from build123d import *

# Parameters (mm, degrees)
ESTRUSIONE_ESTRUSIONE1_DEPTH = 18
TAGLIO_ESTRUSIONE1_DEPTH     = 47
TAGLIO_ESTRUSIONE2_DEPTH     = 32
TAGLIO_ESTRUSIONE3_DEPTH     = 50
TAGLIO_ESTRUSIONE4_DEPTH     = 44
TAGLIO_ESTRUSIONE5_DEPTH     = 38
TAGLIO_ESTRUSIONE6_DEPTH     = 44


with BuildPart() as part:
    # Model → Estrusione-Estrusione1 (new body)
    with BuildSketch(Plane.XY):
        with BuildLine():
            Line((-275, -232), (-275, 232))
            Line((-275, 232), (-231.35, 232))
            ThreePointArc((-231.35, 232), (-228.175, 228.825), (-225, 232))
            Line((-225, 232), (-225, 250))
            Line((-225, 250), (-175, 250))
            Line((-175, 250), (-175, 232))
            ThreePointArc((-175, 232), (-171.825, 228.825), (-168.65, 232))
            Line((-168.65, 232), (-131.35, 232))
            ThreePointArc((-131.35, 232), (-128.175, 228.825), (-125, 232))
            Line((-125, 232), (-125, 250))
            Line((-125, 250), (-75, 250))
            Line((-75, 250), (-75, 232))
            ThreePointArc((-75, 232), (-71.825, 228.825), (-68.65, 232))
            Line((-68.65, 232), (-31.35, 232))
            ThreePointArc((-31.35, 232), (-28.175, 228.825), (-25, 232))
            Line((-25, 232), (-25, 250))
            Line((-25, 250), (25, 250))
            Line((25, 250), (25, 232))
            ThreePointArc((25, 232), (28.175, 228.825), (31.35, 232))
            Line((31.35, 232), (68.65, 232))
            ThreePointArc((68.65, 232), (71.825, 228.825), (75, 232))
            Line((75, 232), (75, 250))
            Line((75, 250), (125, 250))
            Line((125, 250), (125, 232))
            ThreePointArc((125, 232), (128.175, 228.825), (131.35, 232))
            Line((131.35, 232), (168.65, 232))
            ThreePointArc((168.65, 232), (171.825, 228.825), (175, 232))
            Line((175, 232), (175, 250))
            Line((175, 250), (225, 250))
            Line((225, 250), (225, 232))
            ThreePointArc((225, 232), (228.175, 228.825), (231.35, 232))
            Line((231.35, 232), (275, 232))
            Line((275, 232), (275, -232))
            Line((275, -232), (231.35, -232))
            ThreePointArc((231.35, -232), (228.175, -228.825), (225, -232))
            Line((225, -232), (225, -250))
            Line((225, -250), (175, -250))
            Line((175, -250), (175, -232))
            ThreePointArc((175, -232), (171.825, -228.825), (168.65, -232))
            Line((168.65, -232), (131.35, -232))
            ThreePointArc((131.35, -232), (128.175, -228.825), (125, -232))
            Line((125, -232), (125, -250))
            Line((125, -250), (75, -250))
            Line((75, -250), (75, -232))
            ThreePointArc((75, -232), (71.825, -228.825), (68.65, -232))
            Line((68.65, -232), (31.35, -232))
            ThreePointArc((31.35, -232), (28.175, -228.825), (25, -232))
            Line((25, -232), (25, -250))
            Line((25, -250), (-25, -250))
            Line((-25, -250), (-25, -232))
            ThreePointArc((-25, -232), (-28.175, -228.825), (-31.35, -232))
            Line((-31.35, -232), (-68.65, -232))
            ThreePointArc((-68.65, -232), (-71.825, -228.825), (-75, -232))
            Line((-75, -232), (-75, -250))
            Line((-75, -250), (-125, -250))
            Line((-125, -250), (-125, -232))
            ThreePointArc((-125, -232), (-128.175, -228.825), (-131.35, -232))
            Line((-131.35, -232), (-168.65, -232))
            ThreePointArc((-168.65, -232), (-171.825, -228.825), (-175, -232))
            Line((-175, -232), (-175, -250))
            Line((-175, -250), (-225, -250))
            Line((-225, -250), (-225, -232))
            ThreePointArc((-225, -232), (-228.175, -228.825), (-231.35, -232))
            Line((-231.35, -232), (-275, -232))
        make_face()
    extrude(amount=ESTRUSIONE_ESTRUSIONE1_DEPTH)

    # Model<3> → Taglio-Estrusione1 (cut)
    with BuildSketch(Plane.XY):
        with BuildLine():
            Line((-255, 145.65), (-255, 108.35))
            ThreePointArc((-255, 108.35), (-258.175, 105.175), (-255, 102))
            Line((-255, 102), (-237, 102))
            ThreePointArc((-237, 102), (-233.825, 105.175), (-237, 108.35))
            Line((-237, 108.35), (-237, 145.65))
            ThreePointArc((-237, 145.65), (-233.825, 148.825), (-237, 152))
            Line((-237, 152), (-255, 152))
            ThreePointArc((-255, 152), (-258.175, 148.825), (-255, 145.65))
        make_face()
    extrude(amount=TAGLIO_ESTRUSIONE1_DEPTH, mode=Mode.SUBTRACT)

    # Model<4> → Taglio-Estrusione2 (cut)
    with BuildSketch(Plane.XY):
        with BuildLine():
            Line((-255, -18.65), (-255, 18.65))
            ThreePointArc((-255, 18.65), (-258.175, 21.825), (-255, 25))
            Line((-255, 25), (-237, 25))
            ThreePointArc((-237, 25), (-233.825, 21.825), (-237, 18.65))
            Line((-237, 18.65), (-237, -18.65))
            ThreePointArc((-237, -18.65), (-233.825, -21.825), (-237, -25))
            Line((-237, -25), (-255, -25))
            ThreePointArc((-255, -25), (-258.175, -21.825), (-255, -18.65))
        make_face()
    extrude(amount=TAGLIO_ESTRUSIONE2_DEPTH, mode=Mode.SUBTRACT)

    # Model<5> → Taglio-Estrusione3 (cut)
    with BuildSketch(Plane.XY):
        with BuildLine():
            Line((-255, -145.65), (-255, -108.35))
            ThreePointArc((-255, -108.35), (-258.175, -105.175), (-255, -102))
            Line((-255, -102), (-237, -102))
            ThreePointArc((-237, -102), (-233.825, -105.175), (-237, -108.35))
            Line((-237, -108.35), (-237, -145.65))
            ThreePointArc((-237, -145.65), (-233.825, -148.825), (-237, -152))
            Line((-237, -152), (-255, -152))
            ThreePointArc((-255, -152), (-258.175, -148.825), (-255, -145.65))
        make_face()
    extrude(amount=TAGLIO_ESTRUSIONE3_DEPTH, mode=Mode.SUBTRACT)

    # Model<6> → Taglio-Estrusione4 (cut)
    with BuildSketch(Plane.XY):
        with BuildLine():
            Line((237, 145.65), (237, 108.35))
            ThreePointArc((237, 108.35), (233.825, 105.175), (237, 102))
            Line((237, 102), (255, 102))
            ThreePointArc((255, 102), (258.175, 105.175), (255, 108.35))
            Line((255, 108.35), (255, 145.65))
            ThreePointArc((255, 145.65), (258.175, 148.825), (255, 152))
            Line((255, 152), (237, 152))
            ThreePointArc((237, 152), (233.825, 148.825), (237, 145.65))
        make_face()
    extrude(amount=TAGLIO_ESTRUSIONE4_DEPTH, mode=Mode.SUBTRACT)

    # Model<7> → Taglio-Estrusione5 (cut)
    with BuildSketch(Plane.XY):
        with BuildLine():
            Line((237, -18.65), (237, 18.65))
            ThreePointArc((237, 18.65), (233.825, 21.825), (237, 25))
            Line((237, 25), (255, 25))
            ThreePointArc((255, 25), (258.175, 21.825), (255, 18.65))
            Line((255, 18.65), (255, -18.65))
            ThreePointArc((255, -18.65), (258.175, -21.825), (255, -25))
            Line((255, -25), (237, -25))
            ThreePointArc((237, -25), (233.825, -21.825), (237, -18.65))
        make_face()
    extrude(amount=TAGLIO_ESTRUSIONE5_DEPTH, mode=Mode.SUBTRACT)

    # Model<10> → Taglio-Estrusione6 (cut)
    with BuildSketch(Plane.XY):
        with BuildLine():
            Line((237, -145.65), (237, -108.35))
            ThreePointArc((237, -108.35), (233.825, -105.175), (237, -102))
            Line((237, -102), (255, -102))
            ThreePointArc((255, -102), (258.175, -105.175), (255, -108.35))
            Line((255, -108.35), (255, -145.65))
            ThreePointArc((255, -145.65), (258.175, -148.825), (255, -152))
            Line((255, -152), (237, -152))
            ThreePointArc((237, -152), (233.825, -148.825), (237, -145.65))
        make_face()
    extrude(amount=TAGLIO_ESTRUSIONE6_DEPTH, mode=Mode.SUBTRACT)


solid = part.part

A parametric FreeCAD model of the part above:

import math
import FreeCAD as App
import Part
import Sketcher
from FreeCAD import Vector
Q = App.Units.Quantity

doc = App.newDocument("Part")
body = doc.addObject("PartDesign::Body", "Body")

# Sketch on XY plane
sketch1 = doc.addObject("Sketcher::SketchObject", "Sketch")
body.addObject(sketch1)
sketch1.AttachmentSupport = (doc.XY_Plane, [""])
sketch1.MapMode = "FlatFace"
sketch1.addGeometry(Part.LineSegment(Vector(-275, 232, 0), Vector(-275, -232, 0)), False)
sketch1.addGeometry(Part.LineSegment(Vector(-275, -232, 0), Vector(-231.3, -232, 0)), False)
sketch1.addGeometry(Part.ArcOfCircle(Part.Circle(Vector(-228.2, -232, 0), Vector(0, 0, 1), 3.2), math.radians(0), math.radians(180)), False)
sketch1.addGeometry(Part.LineSegment(Vector(-225, -232, 0), Vector(-225, -250, 0)), False)
sketch1.addGeometry(Part.LineSegment(Vector(-225, -250, 0), Vector(-175, -250, 0)), False)
sketch1.addGeometry(Part.LineSegment(Vector(-175, -250, 0), Vector(-175, -232, 0)), False)
sketch1.addGeometry(Part.ArcOfCircle(Part.Circle(Vector(-171.8, -232, 0), Vector(0, 0, 1), 3.2), math.radians(0), math.radians(180)), False)
sketch1.addGeometry(Part.LineSegment(Vector(-168.7, -232, 0), Vector(-131.3, -232, 0)), False)
sketch1.addGeometry(Part.ArcOfCircle(Part.Circle(Vector(-128.2, -232, 0), Vector(0, 0, 1), 3.2), math.radians(0), math.radians(180)), False)
sketch1.addGeometry(Part.LineSegment(Vector(-125, -232, 0), Vector(-125, -250, 0)), False)
sketch1.addGeometry(Part.LineSegment(Vector(-125, -250, 0), Vector(-75, -250, 0)), False)
sketch1.addGeometry(Part.LineSegment(Vector(-75, -250, 0), Vector(-75, -232, 0)), False)
sketch1.addGeometry(Part.ArcOfCircle(Part.Circle(Vector(-71.8, -232, 0), Vector(0, 0, 1), 3.2), math.radians(0), math.radians(180)), False)
sketch1.addGeometry(Part.LineSegment(Vector(-68.7, -232, 0), Vector(-31.4, -232, 0)), False)
sketch1.addGeometry(Part.ArcOfCircle(Part.Circle(Vector(-28.2, -232, 0), Vector(0, 0, 1), 3.2), math.radians(0), math.radians(180)), False)
sketch1.addGeometry(Part.LineSegment(Vector(-25, -232, 0), Vector(-25, -250, 0)), False)
sketch1.addGeometry(Part.LineSegment(Vector(-25, -250, 0), Vector(25, -250, 0)), False)
sketch1.addGeometry(Part.LineSegment(Vector(25, -250, 0), Vector(25, -232, 0)), False)
sketch1.addGeometry(Part.ArcOfCircle(Part.Circle(Vector(28.2, -232, 0), Vector(0, 0, 1), 3.2), math.radians(0), math.radians(180)), False)
sketch1.addGeometry(Part.LineSegment(Vector(31.4, -232, 0), Vector(68.7, -232, 0)), False)
sketch1.addGeometry(Part.ArcOfCircle(Part.Circle(Vector(71.8, -232, 0), Vector(0, 0, 1), 3.2), math.radians(0), math.radians(180)), False)
sketch1.addGeometry(Part.LineSegment(Vector(75, -232, 0), Vector(75, -250, 0)), False)
sketch1.addGeometry(Part.LineSegment(Vector(75, -250, 0), Vector(125, -250, 0)), False)
sketch1.addGeometry(Part.LineSegment(Vector(125, -250, 0), Vector(125, -232, 0)), False)
sketch1.addGeometry(Part.ArcOfCircle(Part.Circle(Vector(128.2, -232, 0), Vector(0, 0, 1), 3.2), math.radians(0), math.radians(180)), False)
sketch1.addGeometry(Part.LineSegment(Vector(131.3, -232, 0), Vector(168.7, -232, 0)), False)
sketch1.addGeometry(Part.ArcOfCircle(Part.Circle(Vector(171.8, -232, 0), Vector(0, 0, 1), 3.2), math.radians(0), math.radians(180)), False)
sketch1.addGeometry(Part.LineSegment(Vector(175, -232, 0), Vector(175, -250, 0)), False)
sketch1.addGeometry(Part.LineSegment(Vector(175, -250, 0), Vector(225, -250, 0)), False)
sketch1.addGeometry(Part.LineSegment(Vector(225, -250, 0), Vector(225, -232, 0)), False)
sketch1.addGeometry(Part.ArcOfCircle(Part.Circle(Vector(228.2, -232, 0), Vector(0, 0, 1), 3.2), math.radians(0), math.radians(180)), False)
sketch1.addGeometry(Part.LineSegment(Vector(231.3, -232, 0), Vector(275, -232, 0)), False)
sketch1.addGeometry(Part.LineSegment(Vector(275, -232, 0), Vector(275, 232, 0)), False)
sketch1.addGeometry(Part.LineSegment(Vector(275, 232, 0), Vector(231.3, 232, 0)), False)
sketch1.addGeometry(Part.ArcOfCircle(Part.Circle(Vector(228.2, 232, 0), Vector(0, 0, 1), 3.2), math.radians(180), math.radians(360)), False)
sketch1.addGeometry(Part.LineSegment(Vector(225, 232, 0), Vector(225, 250, 0)), False)
sketch1.addGeometry(Part.LineSegment(Vector(225, 250, 0), Vector(175, 250, 0)), False)
sketch1.addGeometry(Part.LineSegment(Vector(175, 250, 0), Vector(175, 232, 0)), False)
sketch1.addGeometry(Part.ArcOfCircle(Part.Circle(Vector(171.8, 232, 0), Vector(0, 0, 1), 3.2), math.radians(180), math.radians(360)), False)
sketch1.addGeometry(Part.LineSegment(Vector(168.7, 232, 0), Vector(131.3, 232, 0)), False)
sketch1.addGeometry(Part.ArcOfCircle(Part.Circle(Vector(128.2, 232, 0), Vector(0, 0, 1), 3.2), math.radians(180), math.radians(360)), False)
sketch1.addGeometry(Part.LineSegment(Vector(125, 232, 0), Vector(125, 250, 0)), False)
sketch1.addGeometry(Part.LineSegment(Vector(125, 250, 0), Vector(75, 250, 0)), False)
sketch1.addGeometry(Part.LineSegment(Vector(75, 250, 0), Vector(75, 232, 0)), False)
sketch1.addGeometry(Part.ArcOfCircle(Part.Circle(Vector(71.8, 232, 0), Vector(0, 0, 1), 3.2), math.radians(180), math.radians(360)), False)
sketch1.addGeometry(Part.LineSegment(Vector(68.7, 232, 0), Vector(31.4, 232, 0)), False)
sketch1.addGeometry(Part.ArcOfCircle(Part.Circle(Vector(28.2, 232, 0), Vector(0, 0, 1), 3.2), math.radians(180), math.radians(360)), False)
sketch1.addGeometry(Part.LineSegment(Vector(25, 232, 0), Vector(25, 250, 0)), False)
sketch1.addGeometry(Part.LineSegment(Vector(25, 250, 0), Vector(-25, 250, 0)), False)
sketch1.addGeometry(Part.LineSegment(Vector(-25, 250, 0), Vector(-25, 232, 0)), False)
sketch1.addGeometry(Part.ArcOfCircle(Part.Circle(Vector(-28.2, 232, 0), Vector(0, 0, 1), 3.2), math.radians(180), math.radians(360)), False)
sketch1.addGeometry(Part.LineSegment(Vector(-31.4, 232, 0), Vector(-68.7, 232, 0)), False)
sketch1.addGeometry(Part.ArcOfCircle(Part.Circle(Vector(-71.8, 232, 0), Vector(0, 0, 1), 3.2), math.radians(180), math.radians(360)), False)
sketch1.addGeometry(Part.LineSegment(Vector(-75, 232, 0), Vector(-75, 250, 0)), False)
sketch1.addGeometry(Part.LineSegment(Vector(-75, 250, 0), Vector(-125, 250, 0)), False)
sketch1.addGeometry(Part.LineSegment(Vector(-125, 250, 0), Vector(-125, 232, 0)), False)
sketch1.addGeometry(Part.ArcOfCircle(Part.Circle(Vector(-128.2, 232, 0), Vector(0, 0, 1), 3.2), math.radians(180), math.radians(360)), False)
sketch1.addGeometry(Part.LineSegment(Vector(-131.3, 232, 0), Vector(-168.7, 232, 0)), False)
sketch1.addGeometry(Part.ArcOfCircle(Part.Circle(Vector(-171.8, 232, 0), Vector(0, 0, 1), 3.2), math.radians(180), math.radians(360)), False)
sketch1.addGeometry(Part.LineSegment(Vector(-175, 232, 0), Vector(-175, 250, 0)), False)
sketch1.addGeometry(Part.LineSegment(Vector(-175, 250, 0), Vector(-225, 250, 0)), False)
sketch1.addGeometry(Part.LineSegment(Vector(-225, 250, 0), Vector(-225, 232, 0)), False)
sketch1.addGeometry(Part.ArcOfCircle(Part.Circle(Vector(-228.2, 232, 0), Vector(0, 0, 1), 3.2), math.radians(180), math.radians(360)), False)
sketch1.addGeometry(Part.LineSegment(Vector(-231.3, 232, 0), Vector(-275, 232, 0)), False)
sketch1.addConstraint(Sketcher.Constraint("Coincident", 0, 2, 1, 1))
sketch1.addConstraint(Sketcher.Constraint("Coincident", 1, 2, 2, 2))
sketch1.addConstraint(Sketcher.Constraint("Tangent", 2, 1, 3, 1))
sketch1.addConstraint(Sketcher.Constraint("Coincident", 3, 2, 4, 1))
sketch1.addConstraint(Sketcher.Constraint("Coincident", 4, 2, 5, 1))
sketch1.addConstraint(Sketcher.Constraint("Tangent", 5, 2, 6, 2))
sketch1.addConstraint(Sketcher.Constraint("Coincident", 6, 1, 7, 1))
sketch1.addConstraint(Sketcher.Constraint("Coincident", 7, 2, 8, 2))
sketch1.addConstraint(Sketcher.Constraint("Tangent", 8, 1, 9, 1))
sketch1.addConstraint(Sketcher.Constraint("Coincident", 9, 2, 10, 1))
sketch1.addConstraint(Sketcher.Constraint("Coincident", 10, 2, 11, 1))
sketch1.addConstraint(Sketcher.Constraint("Tangent", 11, 2, 12, 2))
sketch1.addConstraint(Sketcher.Constraint("Coincident", 12, 1, 13, 1))
sketch1.addConstraint(Sketcher.Constraint("Coincident", 13, 2, 14, 2))
sketch1.addConstraint(Sketcher.Constraint("Tangent", 14, 1, 15, 1))
sketch1.addConstraint(Sketcher.Constraint("Coincident", 15, 2, 16, 1))
sketch1.addConstraint(Sketcher.Constraint("Coincident", 16, 2, 17, 1))
sketch1.addConstraint(Sketcher.Constraint("Tangent", 17, 2, 18, 2))
sketch1.addConstraint(Sketcher.Constraint("Coincident", 18, 1, 19, 1))
sketch1.addConstraint(Sketcher.Constraint("Coincident", 19, 2, 20, 2))
sketch1.addConstraint(Sketcher.Constraint("Tangent", 20, 1, 21, 1))
sketch1.addConstraint(Sketcher.Constraint("Coincident", 21, 2, 22, 1))
sketch1.addConstraint(Sketcher.Constraint("Coincident", 22, 2, 23, 1))
sketch1.addConstraint(Sketcher.Constraint("Tangent", 23, 2, 24, 2))
sketch1.addConstraint(Sketcher.Constraint("Coincident", 24, 1, 25, 1))
sketch1.addConstraint(Sketcher.Constraint("Coincident", 25, 2, 26, 2))
sketch1.addConstraint(Sketcher.Constraint("Tangent", 26, 1, 27, 1))
sketch1.addConstraint(Sketcher.Constraint("Coincident", 27, 2, 28, 1))
sketch1.addConstraint(Sketcher.Constraint("Coincident", 28, 2, 29, 1))
sketch1.addConstraint(Sketcher.Constraint("Tangent", 29, 2, 30, 2))
sketch1.addConstraint(Sketcher.Constraint("Coincident", 30, 1, 31, 1))
sketch1.addConstraint(Sketcher.Constraint("Coincident", 31, 2, 32, 1))
sketch1.addConstraint(Sketcher.Constraint("Coincident", 32, 2, 33, 1))
sketch1.addConstraint(Sketcher.Constraint("Coincident", 33, 2, 34, 2))
sketch1.addConstraint(Sketcher.Constraint("Tangent", 34, 1, 35, 1))
sketch1.addConstraint(Sketcher.Constraint("Coincident", 35, 2, 36, 1))
sketch1.addConstraint(Sketcher.Constraint("Coincident", 36, 2, 37, 1))
sketch1.addConstraint(Sketcher.Constraint("Tangent", 37, 2, 38, 2))
sketch1.addConstraint(Sketcher.Constraint("Coincident", 38, 1, 39, 1))
sketch1.addConstraint(Sketcher.Constraint("Coincident", 39, 2, 40, 2))
sketch1.addConstraint(Sketcher.Constraint("Tangent", 40, 1, 41, 1))
sketch1.addConstraint(Sketcher.Constraint("Coincident", 41, 2, 42, 1))
sketch1.addConstraint(Sketcher.Constraint("Coincident", 42, 2, 43, 1))
sketch1.addConstraint(Sketcher.Constraint("Tangent", 43, 2, 44, 2))
sketch1.addConstraint(Sketcher.Constraint("Coincident", 44, 1, 45, 1))
sketch1.addConstraint(Sketcher.Constraint("Coincident", 45, 2, 46, 2))
sketch1.addConstraint(Sketcher.Constraint("Tangent", 46, 1, 47, 1))
sketch1.addConstraint(Sketcher.Constraint("Coincident", 47, 2, 48, 1))
sketch1.addConstraint(Sketcher.Constraint("Coincident", 48, 2, 49, 1))
sketch1.addConstraint(Sketcher.Constraint("Tangent", 49, 2, 50, 2))
sketch1.addConstraint(Sketcher.Constraint("Coincident", 50, 1, 51, 1))
sketch1.addConstraint(Sketcher.Constraint("Coincident", 51, 2, 52, 2))
sketch1.addConstraint(Sketcher.Constraint("Tangent", 52, 1, 53, 1))
sketch1.addConstraint(Sketcher.Constraint("Coincident", 53, 2, 54, 1))
sketch1.addConstraint(Sketcher.Constraint("Coincident", 54, 2, 55, 1))
sketch1.addConstraint(Sketcher.Constraint("Tangent", 55, 2, 56, 2))
sketch1.addConstraint(Sketcher.Constraint("Coincident", 56, 1, 57, 1))
sketch1.addConstraint(Sketcher.Constraint("Coincident", 57, 2, 58, 2))
sketch1.addConstraint(Sketcher.Constraint("Tangent", 58, 1, 59, 1))
sketch1.addConstraint(Sketcher.Constraint("Coincident", 59, 2, 60, 1))
sketch1.addConstraint(Sketcher.Constraint("Coincident", 60, 2, 61, 1))
sketch1.addConstraint(Sketcher.Constraint("Tangent", 61, 2, 62, 2))
sketch1.addConstraint(Sketcher.Constraint("Coincident", 62, 1, 63, 1))
sketch1.addConstraint(Sketcher.Constraint("Coincident", 63, 2, 0, 1))
sketch1.addConstraint(Sketcher.Constraint("Vertical", 0))
sketch1.addConstraint(Sketcher.Constraint("Horizontal", 1))
sketch1.addConstraint(Sketcher.Constraint("Vertical", 3))
sketch1.addConstraint(Sketcher.Constraint("Horizontal", 4))
sketch1.addConstraint(Sketcher.Constraint("Vertical", 5))
sketch1.addConstraint(Sketcher.Constraint("Horizontal", 7))
sketch1.addConstraint(Sketcher.Constraint("Vertical", 9))
sketch1.addConstraint(Sketcher.Constraint("Horizontal", 10))
sketch1.addConstraint(Sketcher.Constraint("Vertical", 11))
sketch1.addConstraint(Sketcher.Constraint("Horizontal", 13))
sketch1.addConstraint(Sketcher.Constraint("Vertical", 15))
sketch1.addConstraint(Sketcher.Constraint("Horizontal", 16))
sketch1.addConstraint(Sketcher.Constraint("Vertical", 17))
sketch1.addConstraint(Sketcher.Constraint("Horizontal", 19))
sketch1.addConstraint(Sketcher.Constraint("Vertical", 21))
sketch1.addConstraint(Sketcher.Constraint("Horizontal", 22))
sketch1.addConstraint(Sketcher.Constraint("Vertical", 23))
sketch1.addConstraint(Sketcher.Constraint("Horizontal", 25))
sketch1.addConstraint(Sketcher.Constraint("Vertical", 27))
sketch1.addConstraint(Sketcher.Constraint("Horizontal", 28))
sketch1.addConstraint(Sketcher.Constraint("Vertical", 29))
sketch1.addConstraint(Sketcher.Constraint("Horizontal", 31))
sketch1.addConstraint(Sketcher.Constraint("Vertical", 32))
sketch1.addConstraint(Sketcher.Constraint("Horizontal", 33))
sketch1.addConstraint(Sketcher.Constraint("Vertical", 35))
sketch1.addConstraint(Sketcher.Constraint("Horizontal", 36))
sketch1.addConstraint(Sketcher.Constraint("Vertical", 37))
sketch1.addConstraint(Sketcher.Constraint("Horizontal", 39))
sketch1.addConstraint(Sketcher.Constraint("Vertical", 41))
sketch1.addConstraint(Sketcher.Constraint("Horizontal", 42))
sketch1.addConstraint(Sketcher.Constraint("Vertical", 43))
sketch1.addConstraint(Sketcher.Constraint("Horizontal", 45))
sketch1.addConstraint(Sketcher.Constraint("Vertical", 47))
sketch1.addConstraint(Sketcher.Constraint("Horizontal", 48))
sketch1.addConstraint(Sketcher.Constraint("Vertical", 49))
sketch1.addConstraint(Sketcher.Constraint("Horizontal", 51))
sketch1.addConstraint(Sketcher.Constraint("Vertical", 53))
sketch1.addConstraint(Sketcher.Constraint("Horizontal", 54))
sketch1.addConstraint(Sketcher.Constraint("Vertical", 55))
sketch1.addConstraint(Sketcher.Constraint("Horizontal", 57))
sketch1.addConstraint(Sketcher.Constraint("Vertical", 59))
sketch1.addConstraint(Sketcher.Constraint("Horizontal", 60))
sketch1.addConstraint(Sketcher.Constraint("Vertical", 61))
sketch1.addConstraint(Sketcher.Constraint("Horizontal", 63))
sketch1.addConstraint(Sketcher.Constraint("Equal", 2, 6))
sketch1.addConstraint(Sketcher.Constraint("Equal", 6, 8))
sketch1.addConstraint(Sketcher.Constraint("Equal", 8, 12))
sketch1.addConstraint(Sketcher.Constraint("Equal", 12, 14))
sketch1.addConstraint(Sketcher.Constraint("Equal", 14, 18))
sketch1.addConstraint(Sketcher.Constraint("Equal", 18, 20))
sketch1.addConstraint(Sketcher.Constraint("Equal", 20, 24))
sketch1.addConstraint(Sketcher.Constraint("Equal", 24, 26))
sketch1.addConstraint(Sketcher.Constraint("Equal", 26, 30))
sketch1.addConstraint(Sketcher.Constraint("Equal", 30, 34))
sketch1.addConstraint(Sketcher.Constraint("Equal", 34, 38))
sketch1.addConstraint(Sketcher.Constraint("Equal", 38, 40))
sketch1.addConstraint(Sketcher.Constraint("Equal", 40, 44))
sketch1.addConstraint(Sketcher.Constraint("Equal", 44, 46))
sketch1.addConstraint(Sketcher.Constraint("Equal", 46, 50))
sketch1.addConstraint(Sketcher.Constraint("Equal", 50, 52))
sketch1.addConstraint(Sketcher.Constraint("Equal", 52, 56))
sketch1.addConstraint(Sketcher.Constraint("Equal", 56, 58))
sketch1.addConstraint(Sketcher.Constraint("Equal", 58, 62))
sketch1.addConstraint(Sketcher.Constraint("Symmetric", 2, 3, 34, 3, -1, 1))
sketch1.addConstraint(Sketcher.Constraint("Symmetric", 6, 3, 38, 3, -1, 1))
sketch1.addConstraint(Sketcher.Constraint("Symmetric", 8, 3, 40, 3, -1, 1))
sketch1.addConstraint(Sketcher.Constraint("Symmetric", 12, 3, 44, 3, -1, 1))
sketch1.addConstraint(Sketcher.Constraint("Symmetric", 14, 3, 46, 3, -1, 1))
sketch1.addConstraint(Sketcher.Constraint("Symmetric", 18, 3, 50, 3, -1, 1))
sketch1.addConstraint(Sketcher.Constraint("Symmetric", 20, 3, 52, 3, -1, 1))
sketch1.addConstraint(Sketcher.Constraint("Symmetric", 24, 3, 56, 3, -1, 1))
sketch1.addConstraint(Sketcher.Constraint("Symmetric", 26, 3, 58, 3, -1, 1))
sketch1.addConstraint(Sketcher.Constraint("Symmetric", 30, 3, 62, 3, -1, 1))
sketch1.addConstraint(Sketcher.Constraint("Symmetric", 0, 2, 32, 2, -1, 1))
sketch1.addConstraint(Sketcher.Constraint("Symmetric", 14, 3, 18, 3, -2))
sketch1.addConstraint(Sketcher.Constraint("Symmetric", 12, 3, 20, 3, -2))
sketch1.addConstraint(Sketcher.Constraint("Symmetric", 8, 3, 24, 3, -2))
sketch1.addConstraint(Sketcher.Constraint("Symmetric", 6, 3, 26, 3, -2))
sketch1.addConstraint(Sketcher.Constraint("Symmetric", 2, 3, 30, 3, -2))
sketch1.addConstraint(Sketcher.Constraint("Horizontal", 2, 3, 6, 3))
sketch1.addConstraint(Sketcher.Constraint("Horizontal", 6, 3, 8, 3))
sketch1.addConstraint(Sketcher.Constraint("Horizontal", 8, 3, 12, 3))
sketch1.addConstraint(Sketcher.Constraint("Horizontal", 12, 3, 14, 3))
sketch1.addConstraint(Sketcher.Constraint("Horizontal", 30, 3, 0, 2))
sketch1.addConstraint(Sketcher.Constraint("Horizontal", 5, 2, 6, 1))
sketch1.addConstraint(Sketcher.Constraint("Horizontal", 4, 2, 9, 2))
sketch1.addConstraint(Sketcher.Constraint("Horizontal", 11, 2, 12, 1))
sketch1.addConstraint(Sketcher.Constraint("Horizontal", 10, 2, 15, 2))
sketch1.addConstraint(Sketcher.Constraint("Horizontal", 17, 2, 18, 1))
sketch1.addConstraint(Sketcher.Constraint("Horizontal", 16, 2, 21, 2))
sketch1.addConstraint(Sketcher.Constraint("Horizontal", 23, 2, 24, 1))
sketch1.addConstraint(Sketcher.Constraint("Horizontal", 22, 2, 27, 2))
sketch1.addConstraint(Sketcher.Constraint("Horizontal", 29, 2, 30, 1))
sketch1.addConstraint(Sketcher.Constraint("Horizontal", 37, 2, 38, 1))
sketch1.addConstraint(Sketcher.Constraint("Horizontal", 36, 2, 41, 2))
sketch1.addConstraint(Sketcher.Constraint("Horizontal", 43, 2, 44, 1))
sketch1.addConstraint(Sketcher.Constraint("Horizontal", 42, 2, 47, 2))
sketch1.addConstraint(Sketcher.Constraint("Horizontal", 49, 2, 50, 1))
sketch1.addConstraint(Sketcher.Constraint("Horizontal", 48, 2, 53, 2))
sketch1.addConstraint(Sketcher.Constraint("Horizontal", 55, 2, 56, 1))
sketch1.addConstraint(Sketcher.Constraint("Horizontal", 54, 2, 59, 2))
sketch1.addConstraint(Sketcher.Constraint("Horizontal", 61, 2, 62, 1))
sketch1.addConstraint(Sketcher.Constraint("Equal", 4, 10))
sketch1.addConstraint(Sketcher.Constraint("Equal", 7, 13))
sketch1.addConstraint(Sketcher.Constraint("Equal", 10, 16))
sketch1.addConstraint(Sketcher.Constraint("Equal", 29, 35))
sketch1.addConstraint(Sketcher.Constraint("DistanceX", 4, 1, 4, 2, Q("50 mm")))
sketch1.addConstraint(Sketcher.Constraint("DistanceY", 0, 2, 0, 1, Q("464 mm")))
sketch1.addConstraint(Sketcher.Constraint("DistanceY", 3, 2, 3, 1, Q("18 mm")))
sketch1.addConstraint(Sketcher.Constraint("DistanceX", 7, 1, 7, 2, Q("37.3 mm")))
sketch1.addConstraint(Sketcher.Constraint("DistanceX", 0, 2, -1, 1, Q("275 mm")))
sketch1.addConstraint(Sketcher.Constraint("DistanceX", 2, 1, -1, 1, Q("225 mm")))
pad1 = doc.addObject("PartDesign::Pad", "Pad")
body.addObject(pad1)
pad1.Profile = sketch1
pad1.Length = 18

# Sketch on XY plane
sketch2 = doc.addObject("Sketcher::SketchObject", "Sketch001")
body.addObject(sketch2)
sketch2.AttachmentSupport = (doc.XY_Plane, [""])
sketch2.MapMode = "FlatFace"
sketch2.addGeometry(Part.LineSegment(Vector(-255, 145.7, 0), Vector(-255, 108.3, 0)), False)
sketch2.addGeometry(Part.ArcOfCircle(Part.Circle(Vector(-255, 105.2, 0), Vector(0, 0, 1), 3.2), math.radians(90), math.radians(270)), False)
sketch2.addGeometry(Part.LineSegment(Vector(-255, 102, 0), Vector(-237, 102, 0)), False)
sketch2.addGeometry(Part.ArcOfCircle(Part.Circle(Vector(-237, 105.2, 0), Vector(0, 0, 1), 3.2), math.radians(-90), math.radians(90)), False)
sketch2.addGeometry(Part.LineSegment(Vector(-237, 108.3, 0), Vector(-237, 145.7, 0)), False)
sketch2.addGeometry(Part.ArcOfCircle(Part.Circle(Vector(-237, 148.8, 0), Vector(0, 0, 1), 3.2), math.radians(-90), math.radians(90)), False)
sketch2.addGeometry(Part.LineSegment(Vector(-237, 152, 0), Vector(-255, 152, 0)), False)
sketch2.addGeometry(Part.ArcOfCircle(Part.Circle(Vector(-255, 148.8, 0), Vector(0, 0, 1), 3.2), math.radians(90), math.radians(270)), False)
sketch2.addConstraint(Sketcher.Constraint("Coincident", 0, 2, 1, 1))
sketch2.addConstraint(Sketcher.Constraint("Tangent", 1, 2, 2, 1))
sketch2.addConstraint(Sketcher.Constraint("Tangent", 2, 2, 3, 1))
sketch2.addConstraint(Sketcher.Constraint("Coincident", 3, 2, 4, 1))
sketch2.addConstraint(Sketcher.Constraint("Coincident", 4, 2, 5, 1))
sketch2.addConstraint(Sketcher.Constraint("Tangent", 5, 2, 6, 1))
sketch2.addConstraint(Sketcher.Constraint("Tangent", 6, 2, 7, 1))
sketch2.addConstraint(Sketcher.Constraint("Coincident", 7, 2, 0, 1))
sketch2.addConstraint(Sketcher.Constraint("Vertical", 0))
sketch2.addConstraint(Sketcher.Constraint("Horizontal", 2))
sketch2.addConstraint(Sketcher.Constraint("Vertical", 4))
sketch2.addConstraint(Sketcher.Constraint("Horizontal", 6))
sketch2.addConstraint(Sketcher.Constraint("Equal", 1, 3))
sketch2.addConstraint(Sketcher.Constraint("Equal", 3, 5))
sketch2.addConstraint(Sketcher.Constraint("Equal", 5, 7))
sketch2.addConstraint(Sketcher.Constraint("Vertical", 3, 3, 5, 3))
sketch2.addConstraint(Sketcher.Constraint("Vertical", 1, 3, 7, 3))
sketch2.addConstraint(Sketcher.Constraint("Vertical", 7, 3, 0, 2))
sketch2.addConstraint(Sketcher.Constraint("Vertical", 2, 2, 3, 2))
sketch2.addConstraint(Sketcher.Constraint("DistanceX", 2, 1, 2, 2, Q("18 mm")))
sketch2.addConstraint(Sketcher.Constraint("DistanceY", 0, 2, 0, 1, Q("37.3 mm")))
sketch2.addConstraint(Sketcher.Constraint("DistanceX", 1, 3, -1, 1, Q("255 mm")))
sketch2.addConstraint(Sketcher.Constraint("DistanceY", -1, 1, 1, 2, Q("102 mm")))
sketch2.addConstraint(Sketcher.Constraint("DistanceY", -1, 1, 5, 2, Q("152 mm")))
pocket1 = doc.addObject("PartDesign::Pocket", "Pocket")
body.addObject(pocket1)
pocket1.Profile = sketch2
pocket1.Length = 47
pocket1.Reversed = True

# Sketch on XY plane
sketch3 = doc.addObject("Sketcher::SketchObject", "Sketch002")
body.addObject(sketch3)
sketch3.AttachmentSupport = (doc.XY_Plane, [""])
sketch3.MapMode = "FlatFace"
sketch3.addGeometry(Part.LineSegment(Vector(-255, 18.6, 0), Vector(-255, -18.6, 0)), False)
sketch3.addGeometry(Part.ArcOfCircle(Part.Circle(Vector(-255, -21.8, 0), Vector(0, 0, 1), 3.2), math.radians(90), math.radians(270)), False)
sketch3.addGeometry(Part.LineSegment(Vector(-255, -25, 0), Vector(-237, -25, 0)), False)
sketch3.addGeometry(Part.ArcOfCircle(Part.Circle(Vector(-237, -21.8, 0), Vector(0, 0, 1), 3.2), math.radians(-90), math.radians(90)), False)
sketch3.addGeometry(Part.LineSegment(Vector(-237, -18.6, 0), Vector(-237, 18.6, 0)), False)
sketch3.addGeometry(Part.ArcOfCircle(Part.Circle(Vector(-237, 21.8, 0), Vector(0, 0, 1), 3.2), math.radians(-90), math.radians(90)), False)
sketch3.addGeometry(Part.LineSegment(Vector(-237, 25, 0), Vector(-255, 25, 0)), False)
sketch3.addGeometry(Part.ArcOfCircle(Part.Circle(Vector(-255, 21.8, 0), Vector(0, 0, 1), 3.2), math.radians(90), math.radians(270)), False)
sketch3.addConstraint(Sketcher.Constraint("Coincident", 0, 2, 1, 1))
sketch3.addConstraint(Sketcher.Constraint("Tangent", 1, 2, 2, 1))
sketch3.addConstraint(Sketcher.Constraint("Tangent", 2, 2, 3, 1))
sketch3.addConstraint(Sketcher.Constraint("Coincident", 3, 2, 4, 1))
sketch3.addConstraint(Sketcher.Constraint("Coincident", 4, 2, 5, 1))
sketch3.addConstraint(Sketcher.Constraint("Tangent", 5, 2, 6, 1))
sketch3.addConstraint(Sketcher.Constraint("Tangent", 6, 2, 7, 1))
sketch3.addConstraint(Sketcher.Constraint("Coincident", 7, 2, 0, 1))
sketch3.addConstraint(Sketcher.Constraint("Vertical", 0))
sketch3.addConstraint(Sketcher.Constraint("Horizontal", 2))
sketch3.addConstraint(Sketcher.Constraint("Vertical", 4))
sketch3.addConstraint(Sketcher.Constraint("Horizontal", 6))
sketch3.addConstraint(Sketcher.Constraint("Equal", 1, 3))
sketch3.addConstraint(Sketcher.Constraint("Equal", 3, 5))
sketch3.addConstraint(Sketcher.Constraint("Equal", 5, 7))
sketch3.addConstraint(Sketcher.Constraint("Symmetric", 3, 3, 5, 3, -1))
sketch3.addConstraint(Sketcher.Constraint("Vertical", 1, 3, 7, 3))
sketch3.addConstraint(Sketcher.Constraint("Vertical", 7, 3, 0, 2))
sketch3.addConstraint(Sketcher.Constraint("Vertical", 2, 2, 3, 2))
sketch3.addConstraint(Sketcher.Constraint("DistanceX", 2, 1, 2, 2, Q("18 mm")))
sketch3.addConstraint(Sketcher.Constraint("DistanceY", 0, 2, 0, 1, Q("37.3 mm")))
sketch3.addConstraint(Sketcher.Constraint("DistanceX", 1, 3, -1, 1, Q("255 mm")))
sketch3.addConstraint(Sketcher.Constraint("DistanceY", 1, 2, -1, 1, Q("25 mm")))
pocket2 = doc.addObject("PartDesign::Pocket", "Pocket001")
body.addObject(pocket2)
pocket2.Profile = sketch3
pocket2.Length = 32
pocket2.Reversed = True

# Sketch on XY plane
sketch4 = doc.addObject("Sketcher::SketchObject", "Sketch003")
body.addObject(sketch4)
sketch4.AttachmentSupport = (doc.XY_Plane, [""])
sketch4.MapMode = "FlatFace"
sketch4.addGeometry(Part.LineSegment(Vector(-255, -108.3, 0), Vector(-255, -145.7, 0)), False)
sketch4.addGeometry(Part.ArcOfCircle(Part.Circle(Vector(-255, -148.8, 0), Vector(0, 0, 1), 3.2), math.radians(90), math.radians(270)), False)
sketch4.addGeometry(Part.LineSegment(Vector(-255, -152, 0), Vector(-237, -152, 0)), False)
sketch4.addGeometry(Part.ArcOfCircle(Part.Circle(Vector(-237, -148.8, 0), Vector(0, 0, 1), 3.2), math.radians(-90), math.radians(90)), False)
sketch4.addGeometry(Part.LineSegment(Vector(-237, -145.7, 0), Vector(-237, -108.3, 0)), False)
sketch4.addGeometry(Part.ArcOfCircle(Part.Circle(Vector(-237, -105.2, 0), Vector(0, 0, 1), 3.2), math.radians(-90), math.radians(90)), False)
sketch4.addGeometry(Part.LineSegment(Vector(-237, -102, 0), Vector(-255, -102, 0)), False)
sketch4.addGeometry(Part.ArcOfCircle(Part.Circle(Vector(-255, -105.2, 0), Vector(0, 0, 1), 3.2), math.radians(90), math.radians(270)), False)
sketch4.addConstraint(Sketcher.Constraint("Coincident", 0, 2, 1, 1))
sketch4.addConstraint(Sketcher.Constraint("Tangent", 1, 2, 2, 1))
sketch4.addConstraint(Sketcher.Constraint("Tangent", 2, 2, 3, 1))
sketch4.addConstraint(Sketcher.Constraint("Coincident", 3, 2, 4, 1))
sketch4.addConstraint(Sketcher.Constraint("Coincident", 4, 2, 5, 1))
sketch4.addConstraint(Sketcher.Constraint("Tangent", 5, 2, 6, 1))
sketch4.addConstraint(Sketcher.Constraint("Tangent", 6, 2, 7, 1))
sketch4.addConstraint(Sketcher.Constraint("Coincident", 7, 2, 0, 1))
sketch4.addConstraint(Sketcher.Constraint("Vertical", 0))
sketch4.addConstraint(Sketcher.Constraint("Horizontal", 2))
sketch4.addConstraint(Sketcher.Constraint("Vertical", 4))
sketch4.addConstraint(Sketcher.Constraint("Horizontal", 6))
sketch4.addConstraint(Sketcher.Constraint("Equal", 1, 3))
sketch4.addConstraint(Sketcher.Constraint("Equal", 3, 5))
sketch4.addConstraint(Sketcher.Constraint("Equal", 5, 7))
sketch4.addConstraint(Sketcher.Constraint("Vertical", 3, 3, 5, 3))
sketch4.addConstraint(Sketcher.Constraint("Vertical", 1, 3, 7, 3))
sketch4.addConstraint(Sketcher.Constraint("Vertical", 7, 3, 0, 2))
sketch4.addConstraint(Sketcher.Constraint("Vertical", 2, 2, 3, 2))
sketch4.addConstraint(Sketcher.Constraint("DistanceX", 2, 1, 2, 2, Q("18 mm")))
sketch4.addConstraint(Sketcher.Constraint("DistanceY", 0, 2, 0, 1, Q("37.3 mm")))
sketch4.addConstraint(Sketcher.Constraint("DistanceX", 1, 3, -1, 1, Q("255 mm")))
sketch4.addConstraint(Sketcher.Constraint("DistanceY", 1, 2, -1, 1, Q("152 mm")))
sketch4.addConstraint(Sketcher.Constraint("DistanceY", 5, 2, -1, 1, Q("102 mm")))
pocket3 = doc.addObject("PartDesign::Pocket", "Pocket002")
body.addObject(pocket3)
pocket3.Profile = sketch4
pocket3.Length = 50
pocket3.Reversed = True

# Sketch on XY plane
sketch5 = doc.addObject("Sketcher::SketchObject", "Sketch004")
body.addObject(sketch5)
sketch5.AttachmentSupport = (doc.XY_Plane, [""])
sketch5.MapMode = "FlatFace"
sketch5.addGeometry(Part.LineSegment(Vector(237, 145.7, 0), Vector(237, 108.3, 0)), False)
sketch5.addGeometry(Part.ArcOfCircle(Part.Circle(Vector(237, 105.2, 0), Vector(0, 0, 1), 3.2), math.radians(90), math.radians(270)), False)
sketch5.addGeometry(Part.LineSegment(Vector(237, 102, 0), Vector(255, 102, 0)), False)
sketch5.addGeometry(Part.ArcOfCircle(Part.Circle(Vector(255, 105.2, 0), Vector(0, 0, 1), 3.2), math.radians(-90), math.radians(90)), False)
sketch5.addGeometry(Part.LineSegment(Vector(255, 108.3, 0), Vector(255, 145.7, 0)), False)
sketch5.addGeometry(Part.ArcOfCircle(Part.Circle(Vector(255, 148.8, 0), Vector(0, 0, 1), 3.2), math.radians(-90), math.radians(90)), False)
sketch5.addGeometry(Part.LineSegment(Vector(255, 152, 0), Vector(237, 152, 0)), False)
sketch5.addGeometry(Part.ArcOfCircle(Part.Circle(Vector(237, 148.8, 0), Vector(0, 0, 1), 3.2), math.radians(90), math.radians(270)), False)
sketch5.addConstraint(Sketcher.Constraint("Coincident", 0, 2, 1, 1))
sketch5.addConstraint(Sketcher.Constraint("Tangent", 1, 2, 2, 1))
sketch5.addConstraint(Sketcher.Constraint("Tangent", 2, 2, 3, 1))
sketch5.addConstraint(Sketcher.Constraint("Coincident", 3, 2, 4, 1))
sketch5.addConstraint(Sketcher.Constraint("Coincident", 4, 2, 5, 1))
sketch5.addConstraint(Sketcher.Constraint("Tangent", 5, 2, 6, 1))
sketch5.addConstraint(Sketcher.Constraint("Tangent", 6, 2, 7, 1))
sketch5.addConstraint(Sketcher.Constraint("Coincident", 7, 2, 0, 1))
sketch5.addConstraint(Sketcher.Constraint("Vertical", 0))
sketch5.addConstraint(Sketcher.Constraint("Horizontal", 2))
sketch5.addConstraint(Sketcher.Constraint("Vertical", 4))
sketch5.addConstraint(Sketcher.Constraint("Horizontal", 6))
sketch5.addConstraint(Sketcher.Constraint("Equal", 1, 3))
sketch5.addConstraint(Sketcher.Constraint("Equal", 3, 5))
sketch5.addConstraint(Sketcher.Constraint("Equal", 5, 7))
sketch5.addConstraint(Sketcher.Constraint("Vertical", 3, 3, 5, 3))
sketch5.addConstraint(Sketcher.Constraint("Vertical", 1, 3, 7, 3))
sketch5.addConstraint(Sketcher.Constraint("Vertical", 7, 3, 0, 2))
sketch5.addConstraint(Sketcher.Constraint("Vertical", 2, 2, 3, 2))
sketch5.addConstraint(Sketcher.Constraint("DistanceX", 2, 1, 2, 2, Q("18 mm")))
sketch5.addConstraint(Sketcher.Constraint("DistanceY", 0, 2, 0, 1, Q("37.3 mm")))
sketch5.addConstraint(Sketcher.Constraint("DistanceX", -1, 1, 1, 3, Q("237 mm")))
sketch5.addConstraint(Sketcher.Constraint("DistanceY", -1, 1, 1, 2, Q("102 mm")))
sketch5.addConstraint(Sketcher.Constraint("DistanceY", -1, 1, 5, 2, Q("152 mm")))
pocket4 = doc.addObject("PartDesign::Pocket", "Pocket003")
body.addObject(pocket4)
pocket4.Profile = sketch5
pocket4.Length = 44
pocket4.Reversed = True

# Sketch on XY plane
sketch6 = doc.addObject("Sketcher::SketchObject", "Sketch005")
body.addObject(sketch6)
sketch6.AttachmentSupport = (doc.XY_Plane, [""])
sketch6.MapMode = "FlatFace"
sketch6.addGeometry(Part.LineSegment(Vector(237, 18.6, 0), Vector(237, -18.6, 0)), False)
sketch6.addGeometry(Part.ArcOfCircle(Part.Circle(Vector(237, -21.8, 0), Vector(0, 0, 1), 3.2), math.radians(90), math.radians(270)), False)
sketch6.addGeometry(Part.LineSegment(Vector(237, -25, 0), Vector(255, -25, 0)), False)
sketch6.addGeometry(Part.ArcOfCircle(Part.Circle(Vector(255, -21.8, 0), Vector(0, 0, 1), 3.2), math.radians(-90), math.radians(90)), False)
sketch6.addGeometry(Part.LineSegment(Vector(255, -18.6, 0), Vector(255, 18.6, 0)), False)
sketch6.addGeometry(Part.ArcOfCircle(Part.Circle(Vector(255, 21.8, 0), Vector(0, 0, 1), 3.2), math.radians(-90), math.radians(90)), False)
sketch6.addGeometry(Part.LineSegment(Vector(255, 25, 0), Vector(237, 25, 0)), False)
sketch6.addGeometry(Part.ArcOfCircle(Part.Circle(Vector(237, 21.8, 0), Vector(0, 0, 1), 3.2), math.radians(90), math.radians(270)), False)
sketch6.addConstraint(Sketcher.Constraint("Coincident", 0, 2, 1, 1))
sketch6.addConstraint(Sketcher.Constraint("Tangent", 1, 2, 2, 1))
sketch6.addConstraint(Sketcher.Constraint("Tangent", 2, 2, 3, 1))
sketch6.addConstraint(Sketcher.Constraint("Coincident", 3, 2, 4, 1))
sketch6.addConstraint(Sketcher.Constraint("Coincident", 4, 2, 5, 1))
sketch6.addConstraint(Sketcher.Constraint("Tangent", 5, 2, 6, 1))
sketch6.addConstraint(Sketcher.Constraint("Tangent", 6, 2, 7, 1))
sketch6.addConstraint(Sketcher.Constraint("Coincident", 7, 2, 0, 1))
sketch6.addConstraint(Sketcher.Constraint("Vertical", 0))
sketch6.addConstraint(Sketcher.Constraint("Horizontal", 2))
sketch6.addConstraint(Sketcher.Constraint("Vertical", 4))
sketch6.addConstraint(Sketcher.Constraint("Horizontal", 6))
sketch6.addConstraint(Sketcher.Constraint("Equal", 1, 3))
sketch6.addConstraint(Sketcher.Constraint("Equal", 3, 5))
sketch6.addConstraint(Sketcher.Constraint("Equal", 5, 7))
sketch6.addConstraint(Sketcher.Constraint("Symmetric", 3, 3, 5, 3, -1))
sketch6.addConstraint(Sketcher.Constraint("Vertical", 1, 3, 7, 3))
sketch6.addConstraint(Sketcher.Constraint("Vertical", 7, 3, 0, 2))
sketch6.addConstraint(Sketcher.Constraint("Vertical", 2, 2, 3, 2))
sketch6.addConstraint(Sketcher.Constraint("DistanceX", 2, 1, 2, 2, Q("18 mm")))
sketch6.addConstraint(Sketcher.Constraint("DistanceY", 0, 2, 0, 1, Q("37.3 mm")))
sketch6.addConstraint(Sketcher.Constraint("DistanceX", -1, 1, 1, 3, Q("237 mm")))
sketch6.addConstraint(Sketcher.Constraint("DistanceY", 1, 2, -1, 1, Q("25 mm")))
pocket5 = doc.addObject("PartDesign::Pocket", "Pocket004")
body.addObject(pocket5)
pocket5.Profile = sketch6
pocket5.Length = 38
pocket5.Reversed = True

# Sketch on XY plane
sketch7 = doc.addObject("Sketcher::SketchObject", "Sketch006")
body.addObject(sketch7)
sketch7.AttachmentSupport = (doc.XY_Plane, [""])
sketch7.MapMode = "FlatFace"
sketch7.addGeometry(Part.LineSegment(Vector(237, -108.3, 0), Vector(237, -145.7, 0)), False)
sketch7.addGeometry(Part.ArcOfCircle(Part.Circle(Vector(237, -148.8, 0), Vector(0, 0, 1), 3.2), math.radians(90), math.radians(270)), False)
sketch7.addGeometry(Part.LineSegment(Vector(237, -152, 0), Vector(255, -152, 0)), False)
sketch7.addGeometry(Part.ArcOfCircle(Part.Circle(Vector(255, -148.8, 0), Vector(0, 0, 1), 3.2), math.radians(-90), math.radians(90)), False)
sketch7.addGeometry(Part.LineSegment(Vector(255, -145.7, 0), Vector(255, -108.3, 0)), False)
sketch7.addGeometry(Part.ArcOfCircle(Part.Circle(Vector(255, -105.2, 0), Vector(0, 0, 1), 3.2), math.radians(-90), math.radians(90)), False)
sketch7.addGeometry(Part.LineSegment(Vector(255, -102, 0), Vector(237, -102, 0)), False)
sketch7.addGeometry(Part.ArcOfCircle(Part.Circle(Vector(237, -105.2, 0), Vector(0, 0, 1), 3.2), math.radians(90), math.radians(270)), False)
sketch7.addConstraint(Sketcher.Constraint("Coincident", 0, 2, 1, 1))
sketch7.addConstraint(Sketcher.Constraint("Tangent", 1, 2, 2, 1))
sketch7.addConstraint(Sketcher.Constraint("Tangent", 2, 2, 3, 1))
sketch7.addConstraint(Sketcher.Constraint("Coincident", 3, 2, 4, 1))
sketch7.addConstraint(Sketcher.Constraint("Coincident", 4, 2, 5, 1))
sketch7.addConstraint(Sketcher.Constraint("Tangent", 5, 2, 6, 1))
sketch7.addConstraint(Sketcher.Constraint("Tangent", 6, 2, 7, 1))
sketch7.addConstraint(Sketcher.Constraint("Coincident", 7, 2, 0, 1))
sketch7.addConstraint(Sketcher.Constraint("Vertical", 0))
sketch7.addConstraint(Sketcher.Constraint("Horizontal", 2))
sketch7.addConstraint(Sketcher.Constraint("Vertical", 4))
sketch7.addConstraint(Sketcher.Constraint("Horizontal", 6))
sketch7.addConstraint(Sketcher.Constraint("Equal", 1, 3))
sketch7.addConstraint(Sketcher.Constraint("Equal", 3, 5))
sketch7.addConstraint(Sketcher.Constraint("Equal", 5, 7))
sketch7.addConstraint(Sketcher.Constraint("Vertical", 3, 3, 5, 3))
sketch7.addConstraint(Sketcher.Constraint("Vertical", 1, 3, 7, 3))
sketch7.addConstraint(Sketcher.Constraint("Vertical", 7, 3, 0, 2))
sketch7.addConstraint(Sketcher.Constraint("Vertical", 2, 2, 3, 2))
sketch7.addConstraint(Sketcher.Constraint("DistanceX", 2, 1, 2, 2, Q("18 mm")))
sketch7.addConstraint(Sketcher.Constraint("DistanceY", 0, 2, 0, 1, Q("37.3 mm")))
sketch7.addConstraint(Sketcher.Constraint("DistanceX", -1, 1, 1, 3, Q("237 mm")))
sketch7.addConstraint(Sketcher.Constraint("DistanceY", 1, 2, -1, 1, Q("152 mm")))
sketch7.addConstraint(Sketcher.Constraint("DistanceY", 5, 2, -1, 1, Q("102 mm")))
pocket6 = doc.addObject("PartDesign::Pocket", "Pocket005")
body.addObject(pocket6)
pocket6.Profile = sketch7
pocket6.Length = 44
pocket6.Reversed = True

doc.recompute()
